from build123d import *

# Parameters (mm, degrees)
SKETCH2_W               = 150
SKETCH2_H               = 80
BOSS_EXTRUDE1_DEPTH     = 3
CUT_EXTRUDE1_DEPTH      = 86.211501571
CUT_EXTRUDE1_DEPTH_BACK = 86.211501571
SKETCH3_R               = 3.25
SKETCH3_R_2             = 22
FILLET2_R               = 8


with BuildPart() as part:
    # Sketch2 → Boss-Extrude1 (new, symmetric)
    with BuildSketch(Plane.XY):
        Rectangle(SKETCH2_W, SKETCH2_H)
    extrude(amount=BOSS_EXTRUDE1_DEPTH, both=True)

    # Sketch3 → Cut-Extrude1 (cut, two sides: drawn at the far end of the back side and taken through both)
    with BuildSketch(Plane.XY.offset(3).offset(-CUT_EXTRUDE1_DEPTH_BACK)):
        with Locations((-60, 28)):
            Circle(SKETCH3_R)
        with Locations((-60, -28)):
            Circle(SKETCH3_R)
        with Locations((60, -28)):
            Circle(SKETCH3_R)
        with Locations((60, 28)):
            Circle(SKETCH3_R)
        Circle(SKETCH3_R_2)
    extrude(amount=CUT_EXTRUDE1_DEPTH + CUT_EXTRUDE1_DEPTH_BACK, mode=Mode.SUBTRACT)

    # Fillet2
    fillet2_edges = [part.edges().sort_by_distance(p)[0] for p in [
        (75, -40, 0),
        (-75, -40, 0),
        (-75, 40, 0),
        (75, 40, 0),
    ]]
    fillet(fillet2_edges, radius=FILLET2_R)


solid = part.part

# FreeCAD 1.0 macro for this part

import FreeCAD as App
import Part
import Sketcher
from FreeCAD import Vector
Q = App.Units.Quantity


def edges_at(feature, points):
    """Names of the edges that pass closest to the given points."""
    edges = feature.Shape.Edges
    near = lambda p: min(range(len(edges)), key=lambda i: edges[i].distToShape(Part.Vertex(*p))[0])
    return sorted({f"Edge{near(p) + 1}" for p in points})


def add_polygon(sketch, points):
    """Adds a closed chain of lines whose ends are joined by coincident constraints."""
    first, n = sketch.GeometryCount, len(points)
    for a, b in zip(points, points[1:] + points[:1]):
        sketch.addGeometry(Part.LineSegment(App.Vector(*a, 0), App.Vector(*b, 0)), False)
    for i in range(n):
        sketch.addConstraint(Sketcher.Constraint("Coincident", first + i, 2, first + (i + 1) % n, 1))

doc = App.newDocument("Part")
body = doc.addObject("PartDesign::Body", "Body")

sketch1 = doc.addObject("Sketcher::SketchObject", "Sketch")
body.addObject(sketch1)
sketch1.AttachmentSupport = (doc.XY_Plane, [""])
sketch1.MapMode = "FlatFace"
add_polygon(sketch1, [(-75, 40), (-75, -40), (75, -40), (75, 40)])
sketch1.addConstraint([
    Sketcher.Constraint("Vertical", 0),
    Sketcher.Constraint("Horizontal", 1),
    Sketcher.Constraint("Vertical", 2),
    Sketcher.Constraint("Horizontal", 3),
    Sketcher.Constraint("Symmetric", 0, 2, 2, 2, -1, 1),
    Sketcher.Constraint("DistanceX", 1, 1, 1, 2, Q("150 mm")),
    Sketcher.Constraint("DistanceY", 0, 2, 0, 1, Q("80 mm")),
])
pad1 = doc.addObject("PartDesign::Pad", "Pad")
body.addObject(pad1)
pad1.Profile = sketch1
pad1.Length = 6
pad1.Midplane = True

sketch2 = doc.addObject("Sketcher::SketchObject", "Sketch001")
body.addObject(sketch2)
sketch2.AttachmentSupport = (doc.XY_Plane, [""])
sketch2.MapMode = "FlatFace"
sketch2.AttachmentOffset = App.Placement(Vector(0, 0, 3), App.Rotation())
sketch2.addGeometry([
    Part.Circle(Vector(-60, 28, 0), Vector(0, 0, 1), 3.25),
    Part.Circle(Vector(-60, -28, 0), Vector(0, 0, 1), 3.25),
    Part.Circle(Vector(60, -28, 0), Vector(0, 0, 1), 3.25),
    Part.Circle(Vector(60, 28, 0), Vector(0, 0, 1), 3.25),
    Part.Circle(Vector(0, 0, 0), Vector(0, 0, 1), 22),
], False)
sketch2.addConstraint([
    Sketcher.Constraint("Coincident", 4, 3, -1, 1),
    Sketcher.Constraint("Equal", 0, 1),
    Sketcher.Constraint("Equal", 1, 2),
    Sketcher.Constraint("Equal", 2, 3),
    Sketcher.Constraint("Symmetric", 0, 3, 2, 3, -1, 1),
    Sketcher.Constraint("Symmetric", 1, 3, 3, 3, -1, 1),
    Sketcher.Constraint("Symmetric", 1, 3, 2, 3, -2),
    Sketcher.Constraint("Diameter", 4, Q("44 mm")),
    Sketcher.Constraint("Diameter", 0, Q("6.5 mm")),
    Sketcher.Constraint("DistanceX", 0, 3, -1, 1, Q("60 mm")),
    Sketcher.Constraint("DistanceY", -1, 1, 0, 3, Q("28 mm")),
])
pocket1 = doc.addObject("PartDesign::Pocket", "Pocket")
body.addObject(pocket1)
pocket1.Profile = sketch2
pocket1.Type = "ThroughAll"
pocket1.Midplane = True
doc.recompute()

fillet = doc.addObject("PartDesign::Fillet", "Fillet")
body.addObject(fillet)
fillet.Base = (pocket1, edges_at(pocket1, [
    (75, -40, 0),
    (-75, -40, 0),
    (-75, 40, 0),
    (75, 40, 0),
]))
fillet.Radius = 8

doc.recompute()
